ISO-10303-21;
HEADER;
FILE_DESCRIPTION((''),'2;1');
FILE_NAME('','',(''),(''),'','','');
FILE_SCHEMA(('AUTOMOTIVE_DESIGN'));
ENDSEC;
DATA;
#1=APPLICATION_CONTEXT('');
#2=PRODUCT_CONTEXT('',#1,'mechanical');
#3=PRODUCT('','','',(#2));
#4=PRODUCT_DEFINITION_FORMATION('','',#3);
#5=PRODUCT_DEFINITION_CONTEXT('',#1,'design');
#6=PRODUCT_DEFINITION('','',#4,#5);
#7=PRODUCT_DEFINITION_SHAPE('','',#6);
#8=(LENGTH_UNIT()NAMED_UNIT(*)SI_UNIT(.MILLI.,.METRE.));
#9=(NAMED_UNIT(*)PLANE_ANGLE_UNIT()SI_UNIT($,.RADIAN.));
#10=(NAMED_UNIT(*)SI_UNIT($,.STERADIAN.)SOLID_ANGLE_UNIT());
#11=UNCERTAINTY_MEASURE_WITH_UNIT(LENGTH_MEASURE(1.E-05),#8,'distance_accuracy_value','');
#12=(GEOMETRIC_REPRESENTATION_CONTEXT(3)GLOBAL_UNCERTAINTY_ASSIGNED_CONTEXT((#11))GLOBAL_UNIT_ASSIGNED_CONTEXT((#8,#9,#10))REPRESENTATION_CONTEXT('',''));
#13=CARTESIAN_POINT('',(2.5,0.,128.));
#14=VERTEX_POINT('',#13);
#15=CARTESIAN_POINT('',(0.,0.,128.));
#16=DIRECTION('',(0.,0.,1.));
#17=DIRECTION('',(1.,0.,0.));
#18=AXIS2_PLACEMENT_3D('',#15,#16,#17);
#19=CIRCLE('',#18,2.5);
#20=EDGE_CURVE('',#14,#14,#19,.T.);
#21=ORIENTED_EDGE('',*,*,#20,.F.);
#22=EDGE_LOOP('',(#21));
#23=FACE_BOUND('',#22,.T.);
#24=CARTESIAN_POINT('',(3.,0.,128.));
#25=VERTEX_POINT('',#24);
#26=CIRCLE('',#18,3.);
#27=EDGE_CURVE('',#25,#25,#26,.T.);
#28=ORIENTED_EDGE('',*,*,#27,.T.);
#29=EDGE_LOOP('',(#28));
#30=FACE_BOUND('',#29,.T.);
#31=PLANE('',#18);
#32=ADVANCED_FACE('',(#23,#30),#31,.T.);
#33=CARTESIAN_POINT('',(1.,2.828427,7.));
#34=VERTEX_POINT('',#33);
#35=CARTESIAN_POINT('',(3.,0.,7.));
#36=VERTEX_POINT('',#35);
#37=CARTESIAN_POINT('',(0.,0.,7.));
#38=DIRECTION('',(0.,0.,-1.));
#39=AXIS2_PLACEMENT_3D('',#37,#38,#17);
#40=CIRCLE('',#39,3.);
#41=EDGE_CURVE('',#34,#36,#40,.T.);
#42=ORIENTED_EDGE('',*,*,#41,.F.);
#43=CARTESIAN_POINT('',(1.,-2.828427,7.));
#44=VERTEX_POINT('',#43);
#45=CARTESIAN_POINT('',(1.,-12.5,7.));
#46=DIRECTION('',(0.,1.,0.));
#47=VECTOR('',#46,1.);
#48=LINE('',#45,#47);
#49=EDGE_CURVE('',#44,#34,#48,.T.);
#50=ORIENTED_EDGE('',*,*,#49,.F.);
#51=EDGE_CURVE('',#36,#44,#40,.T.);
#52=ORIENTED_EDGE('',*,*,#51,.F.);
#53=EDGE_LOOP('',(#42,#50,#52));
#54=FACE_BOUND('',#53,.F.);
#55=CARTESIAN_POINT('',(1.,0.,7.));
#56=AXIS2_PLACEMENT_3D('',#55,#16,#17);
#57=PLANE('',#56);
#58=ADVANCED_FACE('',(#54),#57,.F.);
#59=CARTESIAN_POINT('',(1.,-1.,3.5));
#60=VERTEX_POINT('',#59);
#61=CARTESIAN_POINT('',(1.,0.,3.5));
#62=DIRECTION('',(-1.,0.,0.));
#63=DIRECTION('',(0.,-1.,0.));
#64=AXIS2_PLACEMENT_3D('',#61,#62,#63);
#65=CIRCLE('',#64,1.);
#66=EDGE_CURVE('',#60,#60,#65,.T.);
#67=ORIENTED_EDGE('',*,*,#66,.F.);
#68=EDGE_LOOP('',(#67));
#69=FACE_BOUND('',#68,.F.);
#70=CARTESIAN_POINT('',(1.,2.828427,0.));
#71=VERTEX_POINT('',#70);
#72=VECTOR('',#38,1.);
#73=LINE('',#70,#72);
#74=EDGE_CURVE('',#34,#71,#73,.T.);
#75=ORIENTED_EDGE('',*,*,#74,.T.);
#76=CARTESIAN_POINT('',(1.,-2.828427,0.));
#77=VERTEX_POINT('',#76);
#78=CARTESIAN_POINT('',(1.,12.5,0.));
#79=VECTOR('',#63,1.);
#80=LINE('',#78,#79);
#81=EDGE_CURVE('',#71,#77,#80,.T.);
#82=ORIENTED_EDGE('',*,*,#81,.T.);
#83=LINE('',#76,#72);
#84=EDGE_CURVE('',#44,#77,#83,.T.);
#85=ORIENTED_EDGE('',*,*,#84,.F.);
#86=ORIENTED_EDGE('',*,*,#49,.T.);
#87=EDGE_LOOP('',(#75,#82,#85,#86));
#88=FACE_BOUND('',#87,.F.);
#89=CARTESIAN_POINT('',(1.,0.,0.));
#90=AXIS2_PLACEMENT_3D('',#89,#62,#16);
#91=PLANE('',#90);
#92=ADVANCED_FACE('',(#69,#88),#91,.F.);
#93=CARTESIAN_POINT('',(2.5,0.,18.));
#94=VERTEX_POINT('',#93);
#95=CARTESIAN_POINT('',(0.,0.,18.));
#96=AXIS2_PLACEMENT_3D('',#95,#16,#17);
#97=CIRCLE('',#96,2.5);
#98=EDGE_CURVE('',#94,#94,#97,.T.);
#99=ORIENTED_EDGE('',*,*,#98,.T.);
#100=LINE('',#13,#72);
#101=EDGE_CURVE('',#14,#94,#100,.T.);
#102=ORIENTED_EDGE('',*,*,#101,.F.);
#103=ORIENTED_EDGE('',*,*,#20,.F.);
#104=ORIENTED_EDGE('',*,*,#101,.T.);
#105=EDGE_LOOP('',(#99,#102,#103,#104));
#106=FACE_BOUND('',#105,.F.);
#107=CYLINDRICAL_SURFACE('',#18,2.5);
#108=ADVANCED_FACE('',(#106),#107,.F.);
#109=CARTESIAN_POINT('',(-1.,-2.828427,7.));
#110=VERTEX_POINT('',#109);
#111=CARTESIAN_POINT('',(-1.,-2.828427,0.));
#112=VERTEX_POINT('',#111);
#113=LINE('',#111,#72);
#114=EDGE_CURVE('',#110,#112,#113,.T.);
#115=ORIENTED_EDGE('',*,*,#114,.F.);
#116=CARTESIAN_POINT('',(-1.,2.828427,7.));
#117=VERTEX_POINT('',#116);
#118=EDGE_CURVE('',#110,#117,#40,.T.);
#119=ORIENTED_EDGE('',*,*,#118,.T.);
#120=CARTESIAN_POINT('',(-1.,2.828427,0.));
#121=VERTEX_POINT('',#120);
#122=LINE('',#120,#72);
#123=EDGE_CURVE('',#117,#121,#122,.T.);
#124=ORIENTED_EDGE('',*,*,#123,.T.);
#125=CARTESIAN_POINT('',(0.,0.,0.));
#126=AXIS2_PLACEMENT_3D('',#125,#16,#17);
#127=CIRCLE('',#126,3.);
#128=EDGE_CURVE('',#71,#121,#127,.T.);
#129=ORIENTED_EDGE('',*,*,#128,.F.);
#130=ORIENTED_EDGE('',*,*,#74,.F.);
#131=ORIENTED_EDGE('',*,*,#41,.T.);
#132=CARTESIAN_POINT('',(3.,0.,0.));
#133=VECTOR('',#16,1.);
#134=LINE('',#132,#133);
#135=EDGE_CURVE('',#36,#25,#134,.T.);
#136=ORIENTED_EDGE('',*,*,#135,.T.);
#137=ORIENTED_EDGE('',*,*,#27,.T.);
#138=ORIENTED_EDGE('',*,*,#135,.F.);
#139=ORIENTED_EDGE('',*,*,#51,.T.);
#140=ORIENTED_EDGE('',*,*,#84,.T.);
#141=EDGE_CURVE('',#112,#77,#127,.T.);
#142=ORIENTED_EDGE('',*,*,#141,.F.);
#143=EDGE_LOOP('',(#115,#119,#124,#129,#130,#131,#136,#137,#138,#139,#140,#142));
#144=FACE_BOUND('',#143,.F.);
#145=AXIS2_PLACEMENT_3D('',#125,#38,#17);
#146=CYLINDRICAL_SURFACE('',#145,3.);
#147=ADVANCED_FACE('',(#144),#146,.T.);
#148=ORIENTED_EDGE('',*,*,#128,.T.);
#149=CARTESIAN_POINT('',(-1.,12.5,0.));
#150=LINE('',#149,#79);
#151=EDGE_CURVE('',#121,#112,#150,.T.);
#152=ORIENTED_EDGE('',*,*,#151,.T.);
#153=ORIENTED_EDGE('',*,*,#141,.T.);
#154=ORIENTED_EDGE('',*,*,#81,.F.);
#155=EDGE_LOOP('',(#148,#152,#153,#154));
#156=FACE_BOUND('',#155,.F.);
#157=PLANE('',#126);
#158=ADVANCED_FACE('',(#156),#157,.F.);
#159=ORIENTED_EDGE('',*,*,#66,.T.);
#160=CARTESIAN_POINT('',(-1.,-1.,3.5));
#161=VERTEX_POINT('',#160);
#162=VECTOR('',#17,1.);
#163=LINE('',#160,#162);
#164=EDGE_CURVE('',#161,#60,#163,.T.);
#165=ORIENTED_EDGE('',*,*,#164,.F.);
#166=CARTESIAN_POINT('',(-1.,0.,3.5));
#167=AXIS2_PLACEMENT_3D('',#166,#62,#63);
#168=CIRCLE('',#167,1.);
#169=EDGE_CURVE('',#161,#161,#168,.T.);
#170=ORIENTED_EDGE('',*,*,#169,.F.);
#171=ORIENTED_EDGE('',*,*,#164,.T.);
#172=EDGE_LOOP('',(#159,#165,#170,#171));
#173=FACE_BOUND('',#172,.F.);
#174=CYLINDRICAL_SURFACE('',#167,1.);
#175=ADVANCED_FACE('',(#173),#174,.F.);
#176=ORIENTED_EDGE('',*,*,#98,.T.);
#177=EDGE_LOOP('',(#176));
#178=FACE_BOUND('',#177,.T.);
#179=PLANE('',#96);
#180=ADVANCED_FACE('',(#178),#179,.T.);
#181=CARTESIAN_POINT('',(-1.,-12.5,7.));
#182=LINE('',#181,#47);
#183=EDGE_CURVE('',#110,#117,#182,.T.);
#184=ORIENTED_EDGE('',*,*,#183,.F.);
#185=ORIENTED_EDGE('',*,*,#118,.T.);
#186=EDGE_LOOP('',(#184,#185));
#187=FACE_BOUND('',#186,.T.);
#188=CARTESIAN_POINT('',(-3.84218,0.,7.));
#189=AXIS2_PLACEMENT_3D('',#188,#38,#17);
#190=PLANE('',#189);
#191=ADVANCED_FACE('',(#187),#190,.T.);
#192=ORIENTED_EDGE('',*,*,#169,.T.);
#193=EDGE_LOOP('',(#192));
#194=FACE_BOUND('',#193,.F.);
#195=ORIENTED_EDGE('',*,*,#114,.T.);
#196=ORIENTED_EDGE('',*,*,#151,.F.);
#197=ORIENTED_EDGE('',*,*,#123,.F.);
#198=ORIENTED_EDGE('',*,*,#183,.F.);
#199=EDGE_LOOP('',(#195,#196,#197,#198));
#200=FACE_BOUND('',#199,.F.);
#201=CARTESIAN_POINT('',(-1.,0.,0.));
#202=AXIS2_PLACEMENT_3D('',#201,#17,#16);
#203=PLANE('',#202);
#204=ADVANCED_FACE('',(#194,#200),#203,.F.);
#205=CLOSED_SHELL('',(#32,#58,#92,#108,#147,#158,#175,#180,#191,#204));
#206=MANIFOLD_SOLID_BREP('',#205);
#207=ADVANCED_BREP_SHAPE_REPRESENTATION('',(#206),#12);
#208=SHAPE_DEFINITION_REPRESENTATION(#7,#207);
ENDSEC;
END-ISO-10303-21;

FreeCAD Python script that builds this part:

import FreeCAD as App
import Part
import Sketcher
Q = App.Units.Quantity

doc = App.newDocument("Part")
body = doc.addObject("PartDesign::Body", "Body")

# Sketch on XY plane
sketch1 = doc.addObject("Sketcher::SketchObject", "Sketch")
body.addObject(sketch1)
sketch1.AttachmentSupport = (doc.XY_Plane, [""])
sketch1.MapMode = "FlatFace"
sketch1.addGeometry(Part.Circle(App.Vector(0, 0, 0), App.Vector(0, 0, 1), 3), False)
sketch1.addConstraint(Sketcher.Constraint("Coincident", 0, 3, -1, 1))
sketch1.addConstraint(Sketcher.Constraint("Diameter", 0, Q("6 mm")))
pad1 = doc.addObject("PartDesign::Pad", "Pad")
body.addObject(pad1)
pad1.Profile = sketch1
pad1.Length = 128

# Sketch on XY plane
sketch2 = doc.addObject("Sketcher::SketchObject", "Sketch001")
body.addObject(sketch2)
sketch2.AttachmentSupport = (doc.XY_Plane, [""])
sketch2.MapMode = "FlatFace"
sketch2.AttachmentOffset = App.Placement(App.Vector(0, 0, 128), App.Rotation())
sketch2.addGeometry(Part.Circle(App.Vector(0, 0, 0), App.Vector(0, 0, 1), 2.5), False)
sketch2.addConstraint(Sketcher.Constraint("Coincident", 0, 3, -1, 1))
sketch2.addConstraint(Sketcher.Constraint("Diameter", 0, Q("5 mm")))
pocket1 = doc.addObject("PartDesign::Pocket", "Pocket")
body.addObject(pocket1)
pocket1.Profile = sketch2
pocket1.Length = 110

# Sketch on XZ plane
sketch3 = doc.addObject("Sketcher::SketchObject", "Sketch002")
body.addObject(sketch3)
sketch3.AttachmentSupport = (doc.XZ_Plane, [""])
sketch3.MapMode = "FlatFace"
sketch3.addGeometry(Part.LineSegment(App.Vector(1, 7, 0), App.Vector(1, 0, 0)), False)
sketch3.addGeometry(Part.LineSegment(App.Vector(1, 0, 0), App.Vector(3.8, 0, 0)), False)
sketch3.addGeometry(Part.LineSegment(App.Vector(3.8, 0, 0), App.Vector(3.8, 7, 0)), False)
sketch3.addGeometry(Part.LineSegment(App.Vector(3.8, 7, 0), App.Vector(1, 7, 0)), False)
sketch3.addGeometry(Part.LineSegment(App.Vector(-3.8, 7, 0), App.Vector(-3.8, 0, 0)), False)
sketch3.addGeometry(Part.LineSegment(App.Vector(-3.8, 0, 0), App.Vector(-1, 0, 0)), False)
sketch3.addGeometry(Part.LineSegment(App.Vector(-1, 0, 0), App.Vector(-1, 7, 0)), False)
sketch3.addGeometry(Part.LineSegment(App.Vector(-1, 7, 0), App.Vector(-3.8, 7, 0)), False)
sketch3.addConstraint(Sketcher.Constraint("Coincident", 0, 2, 1, 1))
sketch3.addConstraint(Sketcher.Constraint("Coincident", 1, 2, 2, 1))
sketch3.addConstraint(Sketcher.Constraint("Coincident", 2, 2, 3, 1))
sketch3.addConstraint(Sketcher.Constraint("Coincident", 3, 2, 0, 1))
sketch3.addConstraint(Sketcher.Constraint("Coincident", 4, 2, 5, 1))
sketch3.addConstraint(Sketcher.Constraint("Coincident", 5, 2, 6, 1))
sketch3.addConstraint(Sketcher.Constraint("Coincident", 6, 2, 7, 1))
sketch3.addConstraint(Sketcher.Constraint("Coincident", 7, 2, 4, 1))
sketch3.addConstraint(Sketcher.Constraint("Vertical", 0))
sketch3.addConstraint(Sketcher.Constraint("Horizontal", 1))
sketch3.addConstraint(Sketcher.Constraint("Vertical", 2))
sketch3.addConstraint(Sketcher.Constraint("Horizontal", 3))
sketch3.addConstraint(Sketcher.Constraint("Vertical", 4))
sketch3.addConstraint(Sketcher.Constraint("Horizontal", 5))
sketch3.addConstraint(Sketcher.Constraint("Vertical", 6))
sketch3.addConstraint(Sketcher.Constraint("Horizontal", 7))
sketch3.addConstraint(Sketcher.Constraint("Symmetric", 1, 2, 4, 2, -1, 1))
sketch3.addConstraint(Sketcher.Constraint("Symmetric", 0, 2, 5, 2, -2))
sketch3.addConstraint(Sketcher.Constraint("Horizontal", 3, 2, 6, 2))
sketch3.addConstraint(Sketcher.Constraint("DistanceY", 0, 2, 0, 1, Q("7 mm")))
sketch3.addConstraint(Sketcher.Constraint("DistanceX", -1, 1, 0, 2, Q("1 mm")))
sketch3.addConstraint(Sketcher.Constraint("DistanceX", 1, 1, 1, 2, Q("2.84218 mm")))
pocket2 = doc.addObject("PartDesign::Pocket", "Pocket001")
body.addObject(pocket2)
pocket2.Profile = sketch3
pocket2.Length = 25
pocket2.Midplane = True

# Sketch on YZ plane
sketch4 = doc.addObject("Sketcher::SketchObject", "Sketch003")
body.addObject(sketch4)
sketch4.AttachmentSupport = (doc.YZ_Plane, [""])
sketch4.MapMode = "FlatFace"
sketch4.AttachmentOffset = App.Placement(App.Vector(0, 0, -1), App.Rotation())
sketch4.addGeometry(Part.Circle(App.Vector(0, 3.5, 0), App.Vector(0, 0, 1), 1), False)
sketch4.addConstraint(Sketcher.Constraint("PointOnObject", 0, 3, -2))
sketch4.addConstraint(Sketcher.Constraint("Diameter", 0, Q("2 mm")))
sketch4.addConstraint(Sketcher.Constraint("DistanceY", -1, 1, 0, 3, Q("3.5 mm")))
pocket3 = doc.addObject("PartDesign::Pocket", "Pocket002")
body.addObject(pocket3)
pocket3.Profile = sketch4
pocket3.Type = "ThroughAll"
pocket3.Reversed = True

doc.recompute()
